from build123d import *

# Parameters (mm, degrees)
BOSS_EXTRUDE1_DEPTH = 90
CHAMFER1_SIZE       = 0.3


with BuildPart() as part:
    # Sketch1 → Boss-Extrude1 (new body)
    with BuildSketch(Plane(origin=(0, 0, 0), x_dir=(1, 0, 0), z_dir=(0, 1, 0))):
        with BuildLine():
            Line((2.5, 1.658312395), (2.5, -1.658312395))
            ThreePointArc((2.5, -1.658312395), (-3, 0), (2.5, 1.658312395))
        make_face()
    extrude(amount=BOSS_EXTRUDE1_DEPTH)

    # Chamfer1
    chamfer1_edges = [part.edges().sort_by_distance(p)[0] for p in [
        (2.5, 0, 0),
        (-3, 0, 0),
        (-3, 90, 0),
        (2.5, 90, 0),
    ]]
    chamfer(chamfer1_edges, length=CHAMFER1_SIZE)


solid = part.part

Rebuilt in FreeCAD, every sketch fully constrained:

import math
import FreeCAD as App
import Part
import Sketcher

V = App.Vector
Q = App.Units.Quantity


def edges_at(feature, points):
    """Names of the edges that pass closest to the given points."""
    edges = feature.Shape.Edges
    near = lambda p: min(range(len(edges)), key=lambda i: edges[i].distToShape(Part.Vertex(*p))[0])
    return sorted({f"Edge{near(p) + 1}" for p in points})

doc = App.newDocument("Part")
body = doc.addObject("PartDesign::Body", "Body")

sketch1 = body.newObject("Sketcher::SketchObject", "Sketch")
sketch1.AttachmentSupport = (doc.getObject("XZ_Plane"), [""])
sketch1.MapMode = "FlatFace"
sketch1.addGeometry([
    Part.LineSegment(V(2.5, 1.658312, 0), V(2.5, -1.658312, 0)),
    Part.ArcOfCircle(Part.Circle(V(0, 0, 0), V(0, 0, 1), 3), math.radians(33.55731), math.radians(326.44269)),
], False)
sketch1.addConstraint([
    Sketcher.Constraint("Coincident", 0, 1, 1, 1),
    Sketcher.Constraint("Coincident", 1, 2, 0, 2),
    Sketcher.Constraint("Vertical", 0),
    Sketcher.Constraint("Coincident", 1, 3, -1, 1),
    Sketcher.Constraint("Radius", 1, Q("3 mm")),
    Sketcher.Constraint("DistanceX", -1, 1, 0, 1, Q("2.5 mm")),
])
pad1 = body.newObject("PartDesign::Pad", "Pad")
pad1.Profile = sketch1
pad1.Length = 90
pad1.Reversed = True
doc.recompute()

chamfer = body.newObject("PartDesign::Chamfer", "Chamfer")
chamfer.Base = (pad1, edges_at(pad1, [
    (2.5, 0, 0),
    (-3, 0, 0),
    (-3, 90, 0),
    (2.5, 90, 0),
]))
chamfer.Size = 0.3

doc.recompute()
